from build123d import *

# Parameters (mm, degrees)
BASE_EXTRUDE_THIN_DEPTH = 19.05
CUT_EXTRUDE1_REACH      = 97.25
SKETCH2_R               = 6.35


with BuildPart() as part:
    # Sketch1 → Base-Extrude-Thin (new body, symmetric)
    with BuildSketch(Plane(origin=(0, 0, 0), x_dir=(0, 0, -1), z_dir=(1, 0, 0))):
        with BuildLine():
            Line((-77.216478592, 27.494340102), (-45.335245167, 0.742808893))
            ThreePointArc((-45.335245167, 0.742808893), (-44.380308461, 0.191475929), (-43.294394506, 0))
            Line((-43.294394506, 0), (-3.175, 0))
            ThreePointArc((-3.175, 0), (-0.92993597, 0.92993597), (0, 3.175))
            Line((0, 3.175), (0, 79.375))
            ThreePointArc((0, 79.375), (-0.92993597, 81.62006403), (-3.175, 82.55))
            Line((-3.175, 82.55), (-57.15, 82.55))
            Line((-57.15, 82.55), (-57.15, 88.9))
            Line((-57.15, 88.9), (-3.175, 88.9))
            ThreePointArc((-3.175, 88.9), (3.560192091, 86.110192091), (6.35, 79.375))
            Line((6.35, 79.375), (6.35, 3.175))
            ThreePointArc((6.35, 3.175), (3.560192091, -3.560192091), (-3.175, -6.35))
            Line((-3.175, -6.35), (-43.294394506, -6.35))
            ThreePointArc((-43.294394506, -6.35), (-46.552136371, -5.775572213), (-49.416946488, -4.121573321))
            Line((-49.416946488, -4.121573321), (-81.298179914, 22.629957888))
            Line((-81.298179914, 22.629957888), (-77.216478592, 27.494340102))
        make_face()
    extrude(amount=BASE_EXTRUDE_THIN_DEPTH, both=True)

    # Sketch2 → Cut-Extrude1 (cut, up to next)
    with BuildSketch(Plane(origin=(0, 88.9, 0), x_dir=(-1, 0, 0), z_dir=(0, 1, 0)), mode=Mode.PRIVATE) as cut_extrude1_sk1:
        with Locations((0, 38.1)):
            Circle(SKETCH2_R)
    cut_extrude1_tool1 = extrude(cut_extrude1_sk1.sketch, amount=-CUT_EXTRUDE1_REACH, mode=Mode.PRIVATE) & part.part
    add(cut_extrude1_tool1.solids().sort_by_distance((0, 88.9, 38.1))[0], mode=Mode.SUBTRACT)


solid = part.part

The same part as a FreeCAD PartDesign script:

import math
import FreeCAD as App
import Part
import Sketcher
Q = App.Units.Quantity

doc = App.newDocument("Part")
params = doc.addObject("Spreadsheet::Sheet", "Params")
for row, (alias, value) in enumerate([
    ("sketch1_width", "3 in"),
    ("sketch1_radius", "0.375 in"),
    ("sketch1_radius2", "0.125 in"),
    ("pad1_length", "1.5 in"),
    ("sketch2_diameter", "0.5 in"),
], start=1):
    params.set(f"A{row}", alias)
    params.set(f"B{row}", "=" + value)
    params.setAlias(f"B{row}", alias)

body = doc.addObject("PartDesign::Body", "Body")

# Sketch on YZ plane
sketch1 = body.newObject("Sketcher::SketchObject", "Sketch")
sketch1.AttachmentSupport = (doc.getObject("YZ_Plane"), [""])
sketch1.MapMode = "FlatFace"
sketch1.addGeometry(Part.LineSegment(App.Vector(0.7, 45.3, 0), App.Vector(27.5, 77.2, 0)), False)
sketch1.addGeometry(Part.LineSegment(App.Vector(27.5, 77.2, 0), App.Vector(22.6, 81.3, 0)), False)
sketch1.addGeometry(Part.LineSegment(App.Vector(22.6, 81.3, 0), App.Vector(-4.1, 49.4, 0)), False)
sketch1.addGeometry(Part.ArcOfCircle(Part.Circle(App.Vector(3.2, 43.3, 0), App.Vector(0, 0, 1), 9.5), math.radians(140), math.radians(180)), False)
sketch1.addGeometry(Part.LineSegment(App.Vector(-6.3, 43.3, 0), App.Vector(-6.3, 3.2, 0)), False)
sketch1.addGeometry(Part.ArcOfCircle(Part.Circle(App.Vector(3.2, 3.2, 0), App.Vector(0, 0, 1), 9.5), math.radians(180), math.radians(270)), False)
sketch1.addGeometry(Part.LineSegment(App.Vector(3.2, -6.3, 0), App.Vector(79.4, -6.3, 0)), False)
sketch1.addGeometry(Part.ArcOfCircle(Part.Circle(App.Vector(79.4, 3.2, 0), App.Vector(0, 0, 1), 9.5), math.radians(-90), math.radians(0)), False)
sketch1.addGeometry(Part.LineSegment(App.Vector(88.9, 3.2, 0), App.Vector(88.9, 57.1, 0)), False)
sketch1.addGeometry(Part.LineSegment(App.Vector(88.9, 57.1, 0), App.Vector(82.5, 57.1, 0)), False)
sketch1.addGeometry(Part.LineSegment(App.Vector(82.5, 57.1, 0), App.Vector(82.5, 3.2, 0)), False)
sketch1.addGeometry(Part.ArcOfCircle(Part.Circle(App.Vector(79.4, 3.2, 0), App.Vector(0, 0, 1), 3.2), math.radians(-90), math.radians(0)), False)
sketch1.addGeometry(Part.LineSegment(App.Vector(79.4, 0, 0), App.Vector(3.2, 0, 0)), False)
sketch1.addGeometry(Part.ArcOfCircle(Part.Circle(App.Vector(3.2, 3.2, 0), App.Vector(0, 0, 1), 3.2), math.radians(-180), math.radians(-90)), False)
sketch1.addGeometry(Part.LineSegment(App.Vector(0, 3.2, 0), App.Vector(0, 43.3, 0)), False)
sketch1.addGeometry(Part.ArcOfCircle(Part.Circle(App.Vector(3.2, 43.3, 0), App.Vector(0, 0, 1), 3.2), math.radians(140), math.radians(180)), False)
sketch1.addConstraint(Sketcher.Constraint("Coincident", 0, 2, 1, 1))
sketch1.addConstraint(Sketcher.Constraint("Coincident", 1, 2, 2, 1))
sketch1.addConstraint(Sketcher.Constraint("Tangent", 2, 2, 3, 1))
sketch1.addConstraint(Sketcher.Constraint("Tangent", 3, 2, 4, 1))
sketch1.addConstraint(Sketcher.Constraint("Tangent", 4, 2, 5, 1))
sketch1.addConstraint(Sketcher.Constraint("Tangent", 5, 2, 6, 1))
sketch1.addConstraint(Sketcher.Constraint("Tangent", 6, 2, 7, 1))
sketch1.addConstraint(Sketcher.Constraint("Tangent", 7, 2, 8, 1))
sketch1.addConstraint(Sketcher.Constraint("Coincident", 8, 2, 9, 1))
sketch1.addConstraint(Sketcher.Constraint("Coincident", 9, 2, 10, 1))
sketch1.addConstraint(Sketcher.Constraint("Tangent", 10, 2, 11, 2))
sketch1.addConstraint(Sketcher.Constraint("Tangent", 11, 1, 12, 1))
sketch1.addConstraint(Sketcher.Constraint("Tangent", 12, 2, 13, 2))
sketch1.addConstraint(Sketcher.Constraint("Tangent", 13, 1, 14, 1))
sketch1.addConstraint(Sketcher.Constraint("Tangent", 14, 2, 15, 2))
sketch1.addConstraint(Sketcher.Constraint("Tangent", 15, 1, 0, 1))
sketch1.addConstraint(Sketcher.Constraint("Vertical", 4))
sketch1.addConstraint(Sketcher.Constraint("Horizontal", 6))
sketch1.addConstraint(Sketcher.Constraint("Vertical", 8))
sketch1.addConstraint(Sketcher.Constraint("Horizontal", 9))
sketch1.addConstraint(Sketcher.Constraint("Vertical", 10))
sketch1.addConstraint(Sketcher.Constraint("Horizontal", 12))
sketch1.addConstraint(Sketcher.Constraint("Vertical", 14))
sketch1.addConstraint(Sketcher.Constraint("Coincident", 11, 3, 7, 3))
sketch1.addConstraint(Sketcher.Constraint("Coincident", 13, 3, 5, 3))
sketch1.addConstraint(Sketcher.Constraint("Coincident", 15, 3, 3, 3))
sketch1.addConstraint(Sketcher.Constraint("Equal", 3, 5))
sketch1.addConstraint(Sketcher.Constraint("Equal", 5, 7))
sketch1.addConstraint(Sketcher.Constraint("PointOnObject", 11, 1, -1))
sketch1.addConstraint(Sketcher.Constraint("PointOnObject", 13, 1, -2))
sketch1.addConstraint(Sketcher.Constraint("Perpendicular", 0, 1))
sketch1.addConstraint(Sketcher.Constraint("Perpendicular", 1, 2))
sketch1.addConstraint(Sketcher.Constraint("DistanceX", 6, 1, 6, 2, Q("3 in")))
sketch1.addConstraint(Sketcher.Constraint("Angle", 0, Q("50 deg")))
sketch1.addConstraint(Sketcher.Constraint("Radius", 3, Q("0.375 in")))
sketch1.addConstraint(Sketcher.Constraint("Radius", 11, Q("0.125 in")))
sketch1.addConstraint(Sketcher.Constraint("DistanceY", 6, 2, 8, 2, Q("2.5 in")))
sketch1.addConstraint(Sketcher.Constraint("DistanceY", 4, 2, 4, 1, 40.119395))
sketch1.addConstraint(Sketcher.Constraint("DistanceX", -1, 1, 0, 2, 27.49434))
sketch1.setExpression("Constraints[32]", "Params.sketch1_width")
sketch1.setExpression("Constraints[34]", "Params.sketch1_radius")
sketch1.setExpression("Constraints[35]", "Params.sketch1_radius2")
pad1 = body.newObject("PartDesign::Pad", "Pad")
pad1.Profile = sketch1
pad1.setExpression("Length", "Params.pad1_length")
pad1.Midplane = True

# Sketch on XZ plane
sketch2 = body.newObject("Sketcher::SketchObject", "Sketch001")
sketch2.AttachmentSupport = (doc.getObject("XZ_Plane"), [""])
sketch2.MapMode = "FlatFace"
sketch2.AttachmentOffset = App.Placement(App.Vector(0, 0, -3.5 * 25.4), App.Rotation())
sketch2.addGeometry(Part.Circle(App.Vector(0, 38, 0), App.Vector(0, 0, 1), 6), False)
sketch2.addConstraint(Sketcher.Constraint("PointOnObject", 0, 3, -2))
sketch2.addConstraint(Sketcher.Constraint("Diameter", 0, Q("0.5 in")))
sketch2.addConstraint(Sketcher.Constraint("DistanceY", -1, 1, 0, 3, Q("1.5 in")))
sketch2.setExpression("Constraints[1]", "Params.sketch2_diameter")
pocket1 = body.newObject("PartDesign::Pocket", "Pocket")
pocket1.Profile = sketch2
pocket1.Type = "UpToFirst"
pocket1.Reversed = True

doc.recompute()
